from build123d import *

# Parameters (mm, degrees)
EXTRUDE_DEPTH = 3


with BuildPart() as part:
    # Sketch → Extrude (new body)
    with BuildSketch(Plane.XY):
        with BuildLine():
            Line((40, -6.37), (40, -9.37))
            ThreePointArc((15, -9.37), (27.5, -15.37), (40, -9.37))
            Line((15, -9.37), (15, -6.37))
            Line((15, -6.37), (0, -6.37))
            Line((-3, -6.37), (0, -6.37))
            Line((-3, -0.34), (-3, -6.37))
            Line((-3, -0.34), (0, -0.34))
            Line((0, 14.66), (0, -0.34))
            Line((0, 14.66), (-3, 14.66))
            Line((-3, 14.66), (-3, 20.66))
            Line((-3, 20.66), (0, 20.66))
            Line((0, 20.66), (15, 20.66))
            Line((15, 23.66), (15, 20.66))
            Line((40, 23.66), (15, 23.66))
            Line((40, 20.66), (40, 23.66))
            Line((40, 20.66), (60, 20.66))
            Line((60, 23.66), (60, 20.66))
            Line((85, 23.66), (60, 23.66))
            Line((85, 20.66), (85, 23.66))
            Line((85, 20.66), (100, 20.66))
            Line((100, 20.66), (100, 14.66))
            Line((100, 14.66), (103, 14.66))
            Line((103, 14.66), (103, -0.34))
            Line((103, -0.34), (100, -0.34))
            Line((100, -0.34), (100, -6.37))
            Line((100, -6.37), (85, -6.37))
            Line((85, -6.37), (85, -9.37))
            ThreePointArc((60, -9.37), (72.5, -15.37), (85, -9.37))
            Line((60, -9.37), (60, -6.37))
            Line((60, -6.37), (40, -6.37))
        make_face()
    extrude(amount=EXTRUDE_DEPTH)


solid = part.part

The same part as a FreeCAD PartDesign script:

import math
import FreeCAD as App
import Part
import Sketcher
from FreeCAD import Vector

doc = App.newDocument("Part")
body = doc.addObject("PartDesign::Body", "Body")

sketch1 = body.newObject("Sketcher::SketchObject", "Sketch")
sketch1.AttachmentSupport = (doc.getObject("XY_Plane"), [""])
sketch1.MapMode = "FlatFace"
sketch1.addGeometry([
    Part.LineSegment(Vector(40, -9.4, 0), Vector(40, -6.4, 0)),
    Part.LineSegment(Vector(40, -6.4, 0), Vector(60, -6.4, 0)),
    Part.LineSegment(Vector(60, -6.4, 0), Vector(60, -9.4, 0)),
    Part.ArcOfCircle(Part.Circle(Vector(72.5, 0.7, 0), Vector(0, 0, 1), 16), math.radians(-141), math.radians(-39)),
    Part.LineSegment(Vector(85, -9.4, 0), Vector(85, -6.4, 0)),
    Part.LineSegment(Vector(85, -6.4, 0), Vector(100, -6.4, 0)),
    Part.LineSegment(Vector(100, -6.4, 0), Vector(100, -0.3, 0)),
    Part.LineSegment(Vector(100, -0.3, 0), Vector(103, -0.3, 0)),
    Part.LineSegment(Vector(103, -0.3, 0), Vector(103, 14.7, 0)),
    Part.LineSegment(Vector(103, 14.7, 0), Vector(100, 14.7, 0)),
    Part.LineSegment(Vector(100, 14.7, 0), Vector(100, 20.7, 0)),
    Part.LineSegment(Vector(100, 20.7, 0), Vector(85, 20.7, 0)),
    Part.LineSegment(Vector(85, 20.7, 0), Vector(85, 23.7, 0)),
    Part.LineSegment(Vector(85, 23.7, 0), Vector(60, 23.7, 0)),
    Part.LineSegment(Vector(60, 23.7, 0), Vector(60, 20.7, 0)),
    Part.LineSegment(Vector(60, 20.7, 0), Vector(40, 20.7, 0)),
    Part.LineSegment(Vector(40, 20.7, 0), Vector(40, 23.7, 0)),
    Part.LineSegment(Vector(40, 23.7, 0), Vector(15, 23.7, 0)),
    Part.LineSegment(Vector(15, 23.7, 0), Vector(15, 20.7, 0)),
    Part.LineSegment(Vector(15, 20.7, 0), Vector(-3, 20.7, 0)),
    Part.LineSegment(Vector(-3, 20.7, 0), Vector(-3, 14.7, 0)),
    Part.LineSegment(Vector(-3, 14.7, 0), Vector(0, 14.7, 0)),
    Part.LineSegment(Vector(0, 14.7, 0), Vector(0, -0.3, 0)),
    Part.LineSegment(Vector(0, -0.3, 0), Vector(-3, -0.3, 0)),
    Part.LineSegment(Vector(-3, -0.3, 0), Vector(-3, -6.4, 0)),
    Part.LineSegment(Vector(-3, -6.4, 0), Vector(15, -6.4, 0)),
    Part.LineSegment(Vector(15, -6.4, 0), Vector(15, -9.4, 0)),
    Part.ArcOfCircle(Part.Circle(Vector(27.5, 0.7, 0), Vector(0, 0, 1), 16), math.radians(-141), math.radians(-39)),
], False)
sketch1.addConstraint([
    Sketcher.Constraint("Coincident", 0, 2, 1, 1),
    Sketcher.Constraint("Coincident", 1, 2, 2, 1),
    Sketcher.Constraint("Coincident", 2, 2, 3, 1),
    Sketcher.Constraint("Coincident", 3, 2, 4, 1),
    Sketcher.Constraint("Coincident", 4, 2, 5, 1),
    Sketcher.Constraint("Coincident", 5, 2, 6, 1),
    Sketcher.Constraint("Coincident", 6, 2, 7, 1),
    Sketcher.Constraint("Coincident", 7, 2, 8, 1),
    Sketcher.Constraint("Coincident", 8, 2, 9, 1),
    Sketcher.Constraint("Coincident", 9, 2, 10, 1),
    Sketcher.Constraint("Coincident", 10, 2, 11, 1),
    Sketcher.Constraint("Coincident", 11, 2, 12, 1),
    Sketcher.Constraint("Coincident", 12, 2, 13, 1),
    Sketcher.Constraint("Coincident", 13, 2, 14, 1),
    Sketcher.Constraint("Coincident", 14, 2, 15, 1),
    Sketcher.Constraint("Coincident", 15, 2, 16, 1),
    Sketcher.Constraint("Coincident", 16, 2, 17, 1),
    Sketcher.Constraint("Coincident", 17, 2, 18, 1),
    Sketcher.Constraint("Coincident", 18, 2, 19, 1),
    Sketcher.Constraint("Coincident", 19, 2, 20, 1),
    Sketcher.Constraint("Coincident", 20, 2, 21, 1),
    Sketcher.Constraint("Coincident", 21, 2, 22, 1),
    Sketcher.Constraint("Coincident", 22, 2, 23, 1),
    Sketcher.Constraint("Coincident", 23, 2, 24, 1),
    Sketcher.Constraint("Coincident", 24, 2, 25, 1),
    Sketcher.Constraint("Coincident", 25, 2, 26, 1),
    Sketcher.Constraint("Coincident", 26, 2, 27, 1),
    Sketcher.Constraint("Coincident", 27, 2, 0, 1),
    Sketcher.Constraint("Vertical", 0),
    Sketcher.Constraint("Horizontal", 1),
    Sketcher.Constraint("Vertical", 2),
    Sketcher.Constraint("Vertical", 4),
    Sketcher.Constraint("Horizontal", 5),
    Sketcher.Constraint("Vertical", 6),
    Sketcher.Constraint("Horizontal", 7),
    Sketcher.Constraint("Vertical", 8),
    Sketcher.Constraint("Horizontal", 9),
    Sketcher.Constraint("Vertical", 10),
    Sketcher.Constraint("Horizontal", 11),
    Sketcher.Constraint("Vertical", 12),
    Sketcher.Constraint("Horizontal", 13),
    Sketcher.Constraint("Vertical", 14),
    Sketcher.Constraint("Horizontal", 15),
    Sketcher.Constraint("Vertical", 16),
    Sketcher.Constraint("Horizontal", 17),
    Sketcher.Constraint("Vertical", 18),
    Sketcher.Constraint("Horizontal", 19),
    Sketcher.Constraint("Vertical", 20),
    Sketcher.Constraint("Horizontal", 21),
    Sketcher.Constraint("Vertical", 22),
    Sketcher.Constraint("Horizontal", 23),
    Sketcher.Constraint("Vertical", 24),
    Sketcher.Constraint("Horizontal", 25),
    Sketcher.Constraint("Vertical", 26),
    Sketcher.Constraint("Equal", 3, 27),
    Sketcher.Constraint("PointOnObject", 21, 2, -2),
    Sketcher.Constraint("Horizontal", 3, 3, 27, 3),
    Sketcher.Constraint("Horizontal", 2, 2, 3, 2),
    Sketcher.Constraint("Horizontal", 1, 2, 4, 2),
    Sketcher.Constraint("Horizontal", 11, 2, 14, 2),
    Sketcher.Constraint("Horizontal", 13, 2, 16, 2),
    Sketcher.Constraint("Horizontal", 15, 2, 18, 2),
    Sketcher.Constraint("Horizontal", 9, 2, 20, 2),
    Sketcher.Constraint("Horizontal", 7, 2, 22, 2),
    Sketcher.Constraint("Horizontal", 5, 2, 24, 2),
    Sketcher.Constraint("Horizontal", 3, 2, 26, 2),
    Sketcher.Constraint("Horizontal", 26, 2, 27, 2),
    Sketcher.Constraint("Vertical", 6, 2, 9, 2),
    Sketcher.Constraint("Vertical", 4, 2, 11, 2),
    Sketcher.Constraint("Vertical", 2, 2, 13, 2),
    Sketcher.Constraint("Vertical", 0, 2, 15, 2),
    Sketcher.Constraint("Vertical", 20, 2, 23, 2),
    Sketcher.Constraint("Vertical", 18, 2, 25, 2),
    Sketcher.Constraint("Equal", 9, 21),
    Sketcher.Constraint("Equal", 23, 0),
    Sketcher.Constraint("Equal", 11, 8),
    Sketcher.Constraint("Equal", 4, 12),
    Sketcher.Constraint("DistanceX", 1, 1, 1, 2, 20.0),
    Sketcher.Constraint("DistanceX", 5, 1, 5, 2, 15.0),
    Sketcher.Constraint("DistanceX", 7, 1, 7, 2, 3.0),
    Sketcher.Constraint("DistanceX", 13, 2, 13, 1, 25.0),
    Sketcher.Constraint("DistanceX", 19, 2, 19, 1, 18.0),
    Sketcher.Constraint("DistanceY", 10, 1, 10, 2, 6.0),
    Sketcher.Constraint("DistanceY", 6, 1, 6, 2, 6.03),
    Sketcher.Constraint("DistanceY", 0, 2, -1, 1, 6.37),
    Sketcher.Constraint("Radius", 3, 16.020833),
])
pad1 = body.newObject("PartDesign::Pad", "Pad")
pad1.Profile = sketch1
pad1.Length = 3

doc.recompute()
